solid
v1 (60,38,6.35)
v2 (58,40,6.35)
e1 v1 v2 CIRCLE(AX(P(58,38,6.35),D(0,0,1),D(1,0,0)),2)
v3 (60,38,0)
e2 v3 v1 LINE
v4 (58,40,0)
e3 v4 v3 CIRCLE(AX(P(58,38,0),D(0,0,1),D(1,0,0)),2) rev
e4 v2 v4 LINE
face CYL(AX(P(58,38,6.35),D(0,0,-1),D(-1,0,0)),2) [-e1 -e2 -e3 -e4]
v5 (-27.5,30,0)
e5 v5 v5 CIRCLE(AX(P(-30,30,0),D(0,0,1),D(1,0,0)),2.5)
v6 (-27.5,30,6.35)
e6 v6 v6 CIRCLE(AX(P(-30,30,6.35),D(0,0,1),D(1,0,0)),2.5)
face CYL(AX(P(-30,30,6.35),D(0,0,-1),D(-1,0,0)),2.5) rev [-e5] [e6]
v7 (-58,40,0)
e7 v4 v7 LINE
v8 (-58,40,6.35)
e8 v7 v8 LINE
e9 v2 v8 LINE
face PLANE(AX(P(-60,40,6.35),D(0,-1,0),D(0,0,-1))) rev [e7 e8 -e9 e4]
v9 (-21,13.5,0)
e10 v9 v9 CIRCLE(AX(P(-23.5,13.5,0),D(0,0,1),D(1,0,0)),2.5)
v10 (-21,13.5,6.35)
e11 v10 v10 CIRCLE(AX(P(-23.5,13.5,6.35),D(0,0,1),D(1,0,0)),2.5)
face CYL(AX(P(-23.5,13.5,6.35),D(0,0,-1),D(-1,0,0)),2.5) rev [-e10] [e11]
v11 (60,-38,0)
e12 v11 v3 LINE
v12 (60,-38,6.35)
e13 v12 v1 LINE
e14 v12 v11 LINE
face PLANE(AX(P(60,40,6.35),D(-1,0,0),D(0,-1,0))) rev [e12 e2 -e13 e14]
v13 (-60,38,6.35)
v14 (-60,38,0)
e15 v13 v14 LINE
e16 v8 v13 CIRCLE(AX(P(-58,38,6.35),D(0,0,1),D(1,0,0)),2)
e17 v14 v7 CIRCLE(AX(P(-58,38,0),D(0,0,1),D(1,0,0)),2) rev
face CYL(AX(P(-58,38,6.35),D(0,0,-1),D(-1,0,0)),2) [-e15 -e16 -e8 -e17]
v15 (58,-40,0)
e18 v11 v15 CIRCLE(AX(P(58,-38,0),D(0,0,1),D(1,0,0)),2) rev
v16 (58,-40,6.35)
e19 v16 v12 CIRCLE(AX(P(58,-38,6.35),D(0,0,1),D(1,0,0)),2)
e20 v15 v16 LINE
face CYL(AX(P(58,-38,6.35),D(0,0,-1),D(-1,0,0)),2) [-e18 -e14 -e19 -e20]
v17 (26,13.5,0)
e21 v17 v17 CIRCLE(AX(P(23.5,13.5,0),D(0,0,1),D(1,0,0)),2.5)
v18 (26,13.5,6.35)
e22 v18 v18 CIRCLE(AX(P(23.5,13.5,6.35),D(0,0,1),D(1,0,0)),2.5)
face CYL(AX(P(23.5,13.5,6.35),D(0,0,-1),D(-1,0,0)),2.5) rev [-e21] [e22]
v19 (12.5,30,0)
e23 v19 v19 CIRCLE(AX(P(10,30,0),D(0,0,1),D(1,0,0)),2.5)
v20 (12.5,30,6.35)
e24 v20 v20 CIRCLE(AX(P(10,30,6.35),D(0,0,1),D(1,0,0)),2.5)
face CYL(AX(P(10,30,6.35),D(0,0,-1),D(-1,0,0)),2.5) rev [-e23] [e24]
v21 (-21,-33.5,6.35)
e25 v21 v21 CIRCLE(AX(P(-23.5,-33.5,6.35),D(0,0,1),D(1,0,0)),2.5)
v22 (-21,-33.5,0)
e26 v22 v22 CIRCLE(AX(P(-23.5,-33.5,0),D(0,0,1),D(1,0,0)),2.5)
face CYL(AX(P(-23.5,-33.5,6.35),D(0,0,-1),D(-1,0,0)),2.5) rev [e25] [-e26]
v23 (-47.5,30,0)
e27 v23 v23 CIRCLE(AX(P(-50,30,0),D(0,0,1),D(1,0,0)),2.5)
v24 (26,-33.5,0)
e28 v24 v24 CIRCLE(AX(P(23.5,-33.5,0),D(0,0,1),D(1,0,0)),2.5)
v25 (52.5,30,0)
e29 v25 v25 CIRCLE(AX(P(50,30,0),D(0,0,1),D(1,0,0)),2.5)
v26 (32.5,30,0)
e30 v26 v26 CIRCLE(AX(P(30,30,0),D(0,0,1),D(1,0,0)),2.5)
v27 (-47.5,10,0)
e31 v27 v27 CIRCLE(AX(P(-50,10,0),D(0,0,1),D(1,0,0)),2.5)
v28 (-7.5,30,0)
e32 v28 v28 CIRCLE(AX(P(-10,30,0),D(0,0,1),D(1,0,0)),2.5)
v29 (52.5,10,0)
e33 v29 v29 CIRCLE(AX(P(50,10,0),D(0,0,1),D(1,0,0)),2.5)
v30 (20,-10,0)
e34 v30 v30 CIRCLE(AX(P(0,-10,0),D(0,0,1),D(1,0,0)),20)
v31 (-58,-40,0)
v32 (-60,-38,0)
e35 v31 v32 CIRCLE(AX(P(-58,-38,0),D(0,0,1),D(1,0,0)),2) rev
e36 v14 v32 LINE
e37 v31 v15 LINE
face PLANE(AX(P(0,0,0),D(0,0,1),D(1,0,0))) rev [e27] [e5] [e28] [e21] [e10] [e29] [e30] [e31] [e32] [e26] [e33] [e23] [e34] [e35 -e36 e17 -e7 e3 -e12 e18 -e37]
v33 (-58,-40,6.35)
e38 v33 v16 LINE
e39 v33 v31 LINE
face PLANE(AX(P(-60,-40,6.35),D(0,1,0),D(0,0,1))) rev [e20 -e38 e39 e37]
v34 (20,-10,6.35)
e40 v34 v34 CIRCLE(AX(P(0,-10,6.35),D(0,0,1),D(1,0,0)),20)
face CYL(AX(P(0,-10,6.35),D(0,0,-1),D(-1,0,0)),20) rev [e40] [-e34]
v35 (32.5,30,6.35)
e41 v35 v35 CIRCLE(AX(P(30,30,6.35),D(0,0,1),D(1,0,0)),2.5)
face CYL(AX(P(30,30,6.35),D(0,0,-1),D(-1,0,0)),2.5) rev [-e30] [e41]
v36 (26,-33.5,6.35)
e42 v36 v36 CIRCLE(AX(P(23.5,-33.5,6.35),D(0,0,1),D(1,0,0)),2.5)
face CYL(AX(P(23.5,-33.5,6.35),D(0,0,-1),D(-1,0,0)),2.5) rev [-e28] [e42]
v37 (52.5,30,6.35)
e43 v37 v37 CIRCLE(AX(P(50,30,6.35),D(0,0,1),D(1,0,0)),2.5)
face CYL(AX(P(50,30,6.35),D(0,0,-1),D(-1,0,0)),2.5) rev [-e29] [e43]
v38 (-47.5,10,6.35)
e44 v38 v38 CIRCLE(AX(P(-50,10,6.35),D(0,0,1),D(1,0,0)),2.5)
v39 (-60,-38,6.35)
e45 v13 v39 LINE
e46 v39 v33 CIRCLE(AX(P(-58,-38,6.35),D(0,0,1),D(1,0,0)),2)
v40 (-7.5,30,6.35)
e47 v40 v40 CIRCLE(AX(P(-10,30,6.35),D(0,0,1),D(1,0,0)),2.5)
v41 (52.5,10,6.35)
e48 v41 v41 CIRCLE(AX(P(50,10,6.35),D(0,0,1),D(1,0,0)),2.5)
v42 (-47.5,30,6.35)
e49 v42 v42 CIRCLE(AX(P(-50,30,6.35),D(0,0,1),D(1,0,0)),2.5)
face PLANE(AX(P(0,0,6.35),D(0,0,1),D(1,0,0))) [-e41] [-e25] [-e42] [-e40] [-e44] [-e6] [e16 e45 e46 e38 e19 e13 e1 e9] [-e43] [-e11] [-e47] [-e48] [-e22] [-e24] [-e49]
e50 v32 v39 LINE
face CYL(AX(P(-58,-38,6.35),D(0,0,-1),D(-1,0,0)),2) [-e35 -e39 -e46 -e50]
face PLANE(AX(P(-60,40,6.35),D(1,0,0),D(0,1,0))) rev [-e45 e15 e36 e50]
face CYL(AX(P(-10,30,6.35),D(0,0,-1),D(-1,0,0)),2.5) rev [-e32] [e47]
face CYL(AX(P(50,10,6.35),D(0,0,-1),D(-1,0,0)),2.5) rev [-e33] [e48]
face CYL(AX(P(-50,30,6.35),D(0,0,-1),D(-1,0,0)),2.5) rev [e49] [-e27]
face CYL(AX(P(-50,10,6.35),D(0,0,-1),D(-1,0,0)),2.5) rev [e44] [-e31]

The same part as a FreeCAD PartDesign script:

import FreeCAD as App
import Part
import Sketcher


def edges_at(feature, points):
    """Names of the edges that pass closest to the given points."""
    edges = feature.Shape.Edges
    near = lambda p: min(range(len(edges)), key=lambda i: edges[i].distToShape(Part.Vertex(*p))[0])
    return sorted({f"Edge{near(p) + 1}" for p in points})

doc = App.newDocument("Part")
body = doc.addObject("PartDesign::Body", "Body")

# Sketch on XY plane
sketch1 = doc.addObject("Sketcher::SketchObject", "Sketch")
body.addObject(sketch1)
sketch1.AttachmentSupport = (doc.XY_Plane, [""])
sketch1.MapMode = "FlatFace"
sketch1.addGeometry(Part.LineSegment(App.Vector(-60, 40, 0), App.Vector(-60, -40, 0)), False)
sketch1.addGeometry(Part.LineSegment(App.Vector(-60, -40, 0), App.Vector(60, -40, 0)), False)
sketch1.addGeometry(Part.LineSegment(App.Vector(60, -40, 0), App.Vector(60, 40, 0)), False)
sketch1.addGeometry(Part.LineSegment(App.Vector(60, 40, 0), App.Vector(-60, 40, 0)), False)
sketch1.addGeometry(Part.Circle(App.Vector(-23.5, -33.5, 0), App.Vector(0, 0, 1), 2.5), False)
sketch1.addGeometry(Part.Circle(App.Vector(23.5, -33.5, 0), App.Vector(0, 0, 1), 2.5), False)
sketch1.addGeometry(Part.Circle(App.Vector(0, -10, 0), App.Vector(0, 0, 1), 20), False)
sketch1.addGeometry(Part.Circle(App.Vector(-50, 10, 0), App.Vector(0, 0, 1), 2.5), False)
sketch1.addGeometry(Part.Circle(App.Vector(-23.5, 13.5, 0), App.Vector(0, 0, 1), 2.5), False)
sketch1.addGeometry(Part.Circle(App.Vector(-50, 30, 0), App.Vector(0, 0, 1), 2.5), False)
sketch1.addGeometry(Part.Circle(App.Vector(-30, 30, 0), App.Vector(0, 0, 1), 2.5), False)
sketch1.addGeometry(Part.Circle(App.Vector(-10, 30, 0), App.Vector(0, 0, 1), 2.5), False)
sketch1.addGeometry(Part.Circle(App.Vector(23.5, 13.5, 0), App.Vector(0, 0, 1), 2.5), False)
sketch1.addGeometry(Part.Circle(App.Vector(50, 10, 0), App.Vector(0, 0, 1), 2.5), False)
sketch1.addGeometry(Part.Circle(App.Vector(10, 30, 0), App.Vector(0, 0, 1), 2.5), False)
sketch1.addGeometry(Part.Circle(App.Vector(30, 30, 0), App.Vector(0, 0, 1), 2.5), False)
sketch1.addGeometry(Part.Circle(App.Vector(50, 30, 0), App.Vector(0, 0, 1), 2.5), False)
sketch1.addConstraint(Sketcher.Constraint("Coincident", 0, 2, 1, 1))
sketch1.addConstraint(Sketcher.Constraint("Coincident", 1, 2, 2, 1))
sketch1.addConstraint(Sketcher.Constraint("Coincident", 2, 2, 3, 1))
sketch1.addConstraint(Sketcher.Constraint("Coincident", 3, 2, 0, 1))
sketch1.addConstraint(Sketcher.Constraint("Vertical", 0))
sketch1.addConstraint(Sketcher.Constraint("Horizontal", 1))
sketch1.addConstraint(Sketcher.Constraint("Vertical", 2))
sketch1.addConstraint(Sketcher.Constraint("Horizontal", 3))
sketch1.addConstraint(Sketcher.Constraint("Equal", 4, 5))
sketch1.addConstraint(Sketcher.Constraint("Equal", 5, 7))
sketch1.addConstraint(Sketcher.Constraint("Equal", 7, 8))
sketch1.addConstraint(Sketcher.Constraint("Equal", 8, 9))
sketch1.addConstraint(Sketcher.Constraint("Equal", 9, 10))
sketch1.addConstraint(Sketcher.Constraint("Equal", 10, 11))
sketch1.addConstraint(Sketcher.Constraint("Equal", 11, 12))
sketch1.addConstraint(Sketcher.Constraint("Equal", 12, 13))
sketch1.addConstraint(Sketcher.Constraint("Equal", 13, 14))
sketch1.addConstraint(Sketcher.Constraint("Equal", 14, 15))
sketch1.addConstraint(Sketcher.Constraint("Equal", 15, 16))
sketch1.addConstraint(Sketcher.Constraint("Symmetric", 0, 2, 2, 2, -1, 1))
sketch1.addConstraint(Sketcher.Constraint("Symmetric", 4, 3, 5, 3, -2))
sketch1.addConstraint(Sketcher.Constraint("Symmetric", 8, 3, 12, 3, -2))
sketch1.addConstraint(Sketcher.Constraint("Symmetric", 7, 3, 13, 3, -2))
sketch1.addConstraint(Sketcher.Constraint("Symmetric", 11, 3, 14, 3, -2))
sketch1.addConstraint(Sketcher.Constraint("Symmetric", 10, 3, 15, 3, -2))
sketch1.addConstraint(Sketcher.Constraint("Symmetric", 9, 3, 16, 3, -2))
sketch1.addConstraint(Sketcher.Constraint("PointOnObject", 6, 3, -2))
sketch1.addConstraint(Sketcher.Constraint("Horizontal", 9, 3, 10, 3))
sketch1.addConstraint(Sketcher.Constraint("Horizontal", 10, 3, 11, 3))
sketch1.addConstraint(Sketcher.Constraint("Vertical", 4, 3, 8, 3))
sketch1.addConstraint(Sketcher.Constraint("Vertical", 7, 3, 9, 3))
sketch1.addConstraint(Sketcher.Constraint("Diameter", 4, 5.0))
sketch1.addConstraint(Sketcher.Constraint("Diameter", 6, 40.0))
sketch1.addConstraint(Sketcher.Constraint("DistanceX", 1, 1, 1, 2, 120.0))
sketch1.addConstraint(Sketcher.Constraint("DistanceY", 0, 2, 0, 1, 80.0))
sketch1.addConstraint(Sketcher.Constraint("DistanceY", 6, 3, -1, 1, 10.0))
sketch1.addConstraint(Sketcher.Constraint("DistanceX", 7, 3, -1, 1, 50.0))
sketch1.addConstraint(Sketcher.Constraint("DistanceY", -1, 1, 7, 3, 10.0))
sketch1.addConstraint(Sketcher.Constraint("DistanceY", -1, 1, 9, 3, 30.0))
sketch1.addConstraint(Sketcher.Constraint("DistanceX", 10, 3, -1, 1, 30.0))
sketch1.addConstraint(Sketcher.Constraint("DistanceX", 11, 3, -1, 1, 10.0))
sketch1.addConstraint(Sketcher.Constraint("DistanceX", 4, 3, 5, 3, 47.0))
sketch1.addConstraint(Sketcher.Constraint("DistanceY", 4, 3, 8, 3, 47.0))
sketch1.addConstraint(Sketcher.Constraint("DistanceY", 4, 3, -1, 1, 33.5))
pad1 = doc.addObject("PartDesign::Pad", "Pad")
body.addObject(pad1)
pad1.Profile = sketch1
pad1.Length = 6.35
doc.recompute()

fillet = doc.addObject("PartDesign::Fillet", "Fillet")
body.addObject(fillet)
fillet.Base = (pad1, edges_at(pad1, [
    (60, -40, 3.175),
    (-60, -40, 3.175),
    (-60, 40, 3.175),
    (60, 40, 3.175),
]))
fillet.Radius = 2

doc.recompute()
